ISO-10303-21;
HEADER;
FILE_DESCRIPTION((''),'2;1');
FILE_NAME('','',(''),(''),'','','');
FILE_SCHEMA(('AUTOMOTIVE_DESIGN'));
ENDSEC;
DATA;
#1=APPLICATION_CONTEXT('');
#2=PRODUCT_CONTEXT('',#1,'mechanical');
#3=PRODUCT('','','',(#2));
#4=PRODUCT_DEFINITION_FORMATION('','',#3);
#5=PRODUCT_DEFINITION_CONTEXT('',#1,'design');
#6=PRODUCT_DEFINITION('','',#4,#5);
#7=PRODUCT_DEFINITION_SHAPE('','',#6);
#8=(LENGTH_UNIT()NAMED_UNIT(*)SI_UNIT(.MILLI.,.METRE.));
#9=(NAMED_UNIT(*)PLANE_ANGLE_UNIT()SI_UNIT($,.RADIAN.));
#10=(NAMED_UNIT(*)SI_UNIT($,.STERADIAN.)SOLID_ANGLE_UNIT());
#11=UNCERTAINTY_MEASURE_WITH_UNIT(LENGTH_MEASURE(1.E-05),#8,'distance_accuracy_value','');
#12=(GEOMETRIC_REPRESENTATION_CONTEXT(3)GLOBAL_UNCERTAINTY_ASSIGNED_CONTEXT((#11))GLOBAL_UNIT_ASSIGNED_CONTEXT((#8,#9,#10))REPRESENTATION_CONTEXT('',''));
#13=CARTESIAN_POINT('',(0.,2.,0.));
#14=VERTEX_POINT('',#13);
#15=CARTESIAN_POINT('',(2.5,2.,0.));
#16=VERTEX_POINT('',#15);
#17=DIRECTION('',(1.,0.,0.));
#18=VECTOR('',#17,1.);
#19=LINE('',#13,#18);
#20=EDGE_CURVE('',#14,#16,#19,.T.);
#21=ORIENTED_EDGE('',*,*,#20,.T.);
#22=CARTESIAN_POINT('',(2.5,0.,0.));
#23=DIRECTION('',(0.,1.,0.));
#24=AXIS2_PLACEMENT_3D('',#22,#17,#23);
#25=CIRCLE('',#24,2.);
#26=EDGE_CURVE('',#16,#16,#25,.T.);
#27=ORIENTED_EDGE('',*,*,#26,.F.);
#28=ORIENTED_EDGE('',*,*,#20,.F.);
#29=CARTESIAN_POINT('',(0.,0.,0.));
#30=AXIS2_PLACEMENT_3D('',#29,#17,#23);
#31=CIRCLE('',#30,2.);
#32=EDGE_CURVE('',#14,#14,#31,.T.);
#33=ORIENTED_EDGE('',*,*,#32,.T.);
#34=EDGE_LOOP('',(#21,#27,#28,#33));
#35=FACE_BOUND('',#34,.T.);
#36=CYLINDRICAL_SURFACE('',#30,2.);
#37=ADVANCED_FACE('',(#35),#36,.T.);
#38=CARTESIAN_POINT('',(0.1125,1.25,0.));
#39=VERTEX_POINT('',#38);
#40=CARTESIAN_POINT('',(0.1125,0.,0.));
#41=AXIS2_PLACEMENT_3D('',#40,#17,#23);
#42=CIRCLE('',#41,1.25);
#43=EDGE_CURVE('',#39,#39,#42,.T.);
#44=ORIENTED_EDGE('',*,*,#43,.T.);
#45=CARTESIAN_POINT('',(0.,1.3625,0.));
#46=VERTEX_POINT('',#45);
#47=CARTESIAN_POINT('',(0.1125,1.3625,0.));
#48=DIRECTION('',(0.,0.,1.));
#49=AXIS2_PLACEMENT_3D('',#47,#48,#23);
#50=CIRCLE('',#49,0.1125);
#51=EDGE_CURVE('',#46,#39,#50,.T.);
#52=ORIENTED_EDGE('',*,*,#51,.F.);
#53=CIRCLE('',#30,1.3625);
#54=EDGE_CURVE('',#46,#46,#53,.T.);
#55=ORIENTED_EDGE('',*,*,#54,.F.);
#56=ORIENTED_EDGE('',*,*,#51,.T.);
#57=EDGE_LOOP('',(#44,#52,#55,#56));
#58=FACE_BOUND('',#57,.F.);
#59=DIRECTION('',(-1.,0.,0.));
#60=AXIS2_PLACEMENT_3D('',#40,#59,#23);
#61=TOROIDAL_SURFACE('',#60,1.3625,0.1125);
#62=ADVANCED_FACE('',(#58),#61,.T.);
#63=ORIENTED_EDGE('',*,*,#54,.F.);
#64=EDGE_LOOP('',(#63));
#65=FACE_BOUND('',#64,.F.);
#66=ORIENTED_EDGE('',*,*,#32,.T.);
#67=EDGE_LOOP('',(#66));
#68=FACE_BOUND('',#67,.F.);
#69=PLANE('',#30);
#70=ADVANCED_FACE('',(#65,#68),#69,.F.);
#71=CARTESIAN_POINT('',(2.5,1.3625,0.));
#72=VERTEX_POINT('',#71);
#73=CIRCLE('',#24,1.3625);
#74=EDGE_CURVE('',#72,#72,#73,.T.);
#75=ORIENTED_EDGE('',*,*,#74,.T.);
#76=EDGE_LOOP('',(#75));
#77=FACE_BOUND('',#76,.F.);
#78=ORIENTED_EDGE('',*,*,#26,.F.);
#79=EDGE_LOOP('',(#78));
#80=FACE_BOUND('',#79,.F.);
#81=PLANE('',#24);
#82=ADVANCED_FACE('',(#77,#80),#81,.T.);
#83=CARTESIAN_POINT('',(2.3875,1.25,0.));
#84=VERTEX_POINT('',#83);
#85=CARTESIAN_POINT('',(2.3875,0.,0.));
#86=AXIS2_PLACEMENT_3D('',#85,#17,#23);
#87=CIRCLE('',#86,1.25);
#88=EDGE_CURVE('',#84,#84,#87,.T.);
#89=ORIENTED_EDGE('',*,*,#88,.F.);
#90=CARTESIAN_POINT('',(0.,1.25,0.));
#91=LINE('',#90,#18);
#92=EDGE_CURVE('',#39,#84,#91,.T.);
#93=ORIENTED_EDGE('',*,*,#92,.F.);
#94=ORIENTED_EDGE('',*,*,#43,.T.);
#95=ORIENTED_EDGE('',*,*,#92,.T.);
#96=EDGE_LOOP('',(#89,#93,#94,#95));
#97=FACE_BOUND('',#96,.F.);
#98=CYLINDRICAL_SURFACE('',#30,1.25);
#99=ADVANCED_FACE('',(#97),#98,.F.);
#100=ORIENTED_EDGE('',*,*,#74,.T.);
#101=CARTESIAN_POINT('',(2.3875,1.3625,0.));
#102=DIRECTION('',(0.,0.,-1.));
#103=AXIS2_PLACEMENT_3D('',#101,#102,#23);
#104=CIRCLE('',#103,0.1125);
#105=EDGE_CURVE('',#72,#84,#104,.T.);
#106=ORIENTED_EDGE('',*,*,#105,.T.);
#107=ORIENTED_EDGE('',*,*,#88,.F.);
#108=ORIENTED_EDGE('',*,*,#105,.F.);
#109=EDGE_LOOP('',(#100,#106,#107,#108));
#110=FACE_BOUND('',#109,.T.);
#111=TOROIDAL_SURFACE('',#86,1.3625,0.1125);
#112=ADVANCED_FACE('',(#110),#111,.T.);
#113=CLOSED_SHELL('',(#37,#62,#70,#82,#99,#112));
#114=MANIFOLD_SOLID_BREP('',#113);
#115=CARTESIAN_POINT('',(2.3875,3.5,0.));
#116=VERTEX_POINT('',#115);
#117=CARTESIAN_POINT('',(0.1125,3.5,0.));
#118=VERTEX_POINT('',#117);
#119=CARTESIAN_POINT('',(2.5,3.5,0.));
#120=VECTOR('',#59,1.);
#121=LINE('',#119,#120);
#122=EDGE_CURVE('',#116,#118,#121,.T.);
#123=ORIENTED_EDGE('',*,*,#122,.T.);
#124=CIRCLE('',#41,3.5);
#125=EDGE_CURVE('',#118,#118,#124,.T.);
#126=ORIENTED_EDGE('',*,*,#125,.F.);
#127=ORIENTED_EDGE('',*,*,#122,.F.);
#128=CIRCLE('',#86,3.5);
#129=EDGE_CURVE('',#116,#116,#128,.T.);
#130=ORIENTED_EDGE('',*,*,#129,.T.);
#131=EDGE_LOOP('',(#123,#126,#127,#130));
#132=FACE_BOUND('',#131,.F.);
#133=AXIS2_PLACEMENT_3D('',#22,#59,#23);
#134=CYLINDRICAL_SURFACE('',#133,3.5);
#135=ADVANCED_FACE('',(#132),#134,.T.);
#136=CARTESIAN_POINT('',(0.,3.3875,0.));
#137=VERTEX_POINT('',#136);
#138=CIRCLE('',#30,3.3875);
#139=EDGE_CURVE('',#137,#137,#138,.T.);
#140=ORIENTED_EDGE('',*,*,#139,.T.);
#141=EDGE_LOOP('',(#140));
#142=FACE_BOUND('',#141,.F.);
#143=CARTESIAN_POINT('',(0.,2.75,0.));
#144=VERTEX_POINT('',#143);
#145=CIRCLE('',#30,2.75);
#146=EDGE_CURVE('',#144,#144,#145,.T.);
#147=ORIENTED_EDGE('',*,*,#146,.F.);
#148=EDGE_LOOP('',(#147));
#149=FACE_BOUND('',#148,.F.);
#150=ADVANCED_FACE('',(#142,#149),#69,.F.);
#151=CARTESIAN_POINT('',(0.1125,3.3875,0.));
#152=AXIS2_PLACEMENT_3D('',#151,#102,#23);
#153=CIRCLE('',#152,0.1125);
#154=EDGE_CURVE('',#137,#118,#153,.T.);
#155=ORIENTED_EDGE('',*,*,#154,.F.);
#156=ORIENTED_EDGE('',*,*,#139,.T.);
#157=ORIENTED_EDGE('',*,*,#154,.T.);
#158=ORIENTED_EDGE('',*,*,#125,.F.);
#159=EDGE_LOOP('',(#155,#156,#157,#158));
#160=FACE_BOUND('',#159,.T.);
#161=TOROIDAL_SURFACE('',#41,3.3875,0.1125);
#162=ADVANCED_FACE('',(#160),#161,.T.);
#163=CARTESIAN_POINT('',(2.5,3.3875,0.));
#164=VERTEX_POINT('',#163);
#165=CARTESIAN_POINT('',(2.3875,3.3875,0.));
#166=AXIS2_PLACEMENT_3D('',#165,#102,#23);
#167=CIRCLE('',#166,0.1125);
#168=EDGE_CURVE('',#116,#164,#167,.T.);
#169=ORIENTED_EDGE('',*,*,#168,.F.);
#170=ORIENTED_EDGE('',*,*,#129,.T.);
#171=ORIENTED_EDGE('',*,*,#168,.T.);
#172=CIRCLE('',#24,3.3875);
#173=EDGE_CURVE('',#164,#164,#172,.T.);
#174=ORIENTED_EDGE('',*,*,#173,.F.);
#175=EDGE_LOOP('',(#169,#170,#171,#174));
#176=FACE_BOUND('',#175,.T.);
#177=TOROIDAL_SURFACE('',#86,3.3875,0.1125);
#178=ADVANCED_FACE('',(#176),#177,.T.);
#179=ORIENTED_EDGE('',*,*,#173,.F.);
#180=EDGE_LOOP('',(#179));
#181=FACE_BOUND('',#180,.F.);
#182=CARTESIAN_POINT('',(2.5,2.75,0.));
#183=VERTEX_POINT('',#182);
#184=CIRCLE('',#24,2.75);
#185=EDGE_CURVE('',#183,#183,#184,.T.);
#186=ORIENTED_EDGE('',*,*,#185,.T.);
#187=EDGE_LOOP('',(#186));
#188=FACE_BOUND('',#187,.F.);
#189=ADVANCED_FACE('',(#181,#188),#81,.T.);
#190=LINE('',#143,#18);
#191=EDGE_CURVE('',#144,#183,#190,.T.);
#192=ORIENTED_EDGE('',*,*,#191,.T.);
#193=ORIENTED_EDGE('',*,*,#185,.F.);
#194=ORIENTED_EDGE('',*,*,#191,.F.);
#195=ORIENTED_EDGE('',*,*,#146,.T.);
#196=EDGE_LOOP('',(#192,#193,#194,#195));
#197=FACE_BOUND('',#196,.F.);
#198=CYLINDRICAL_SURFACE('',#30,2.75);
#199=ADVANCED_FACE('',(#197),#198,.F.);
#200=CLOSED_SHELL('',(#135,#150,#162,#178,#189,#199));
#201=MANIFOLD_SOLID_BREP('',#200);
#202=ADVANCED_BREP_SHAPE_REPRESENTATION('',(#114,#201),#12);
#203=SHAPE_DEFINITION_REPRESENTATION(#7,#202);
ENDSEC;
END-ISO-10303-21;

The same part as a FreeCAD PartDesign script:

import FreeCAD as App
import Part
import Sketcher
from FreeCAD import Vector


def edges_at(feature, points):
    """Names of the edges that pass closest to the given points."""
    edges = feature.Shape.Edges
    near = lambda p: min(range(len(edges)), key=lambda i: edges[i].distToShape(Part.Vertex(*p))[0])
    return sorted({f"Edge{near(p) + 1}" for p in points})


def add_polygon(sketch, points):
    """Adds a closed chain of lines whose ends are joined by coincident constraints."""
    first, n = sketch.GeometryCount, len(points)
    for a, b in zip(points, points[1:] + points[:1]):
        sketch.addGeometry(Part.LineSegment(App.Vector(*a, 0), App.Vector(*b, 0)), False)
    for i in range(n):
        sketch.addConstraint(Sketcher.Constraint("Coincident", first + i, 2, first + (i + 1) % n, 1))

doc = App.newDocument("Part")
body = doc.addObject("PartDesign::Body", "Body")
body.AllowCompound = True

# Sketch on XY plane
sketch1 = body.newObject("Sketcher::SketchObject", "Sketch")
sketch1.AttachmentSupport = (doc.getObject("XY_Plane"), [""])
sketch1.MapMode = "FlatFace"
add_polygon(sketch1, [(0, 2), (0, 1.2), (2.5, 1.2), (2.5, 2)])  # lines 0-3
add_polygon(sketch1, [(0, 3.5), (0, 2.8), (2.5, 2.8), (2.5, 3.5)])  # lines 4-7
sketch1.addConstraint([
    Sketcher.Constraint("Vertical", 0),
    Sketcher.Constraint("Horizontal", 1),
    Sketcher.Constraint("Vertical", 2),
    Sketcher.Constraint("Horizontal", 3),
    Sketcher.Constraint("Vertical", 4),
    Sketcher.Constraint("Horizontal", 5),
    Sketcher.Constraint("Vertical", 6),
    Sketcher.Constraint("Horizontal", 7),
    Sketcher.Constraint("PointOnObject", 0, 2, -2),
    Sketcher.Constraint("PointOnObject", 4, 2, -2),
    Sketcher.Constraint("Vertical", 2, 2, 5, 2),
    Sketcher.Constraint("Equal", 2, 4),
    Sketcher.Constraint("DistanceX", 1, 1, 1, 2, 2.5),
    Sketcher.Constraint("DistanceY", -1, 1, 2, 2, 2.0),
    Sketcher.Constraint("DistanceY", 0, 2, 0, 1, 0.75),
    Sketcher.Constraint("DistanceY", -1, 1, 6, 2, 3.5),
])
revolution = body.newObject("PartDesign::Revolution", "Revolution")
revolution.Profile = sketch1
revolution.ReferenceAxis = (sketch1, ["H_Axis"])
revolution.Angle = 360
doc.recompute()

fillet = body.newObject("PartDesign::Fillet", "Fillet")
fillet.Base = (revolution, edges_at(revolution, [
    (0, -3.5, 0),
    (2.5, -3.5, 0),
    (0, -1.25, 0),
    (2.5, -1.25, 0),
]))
fillet.Radius = 0.1125

doc.recompute()
